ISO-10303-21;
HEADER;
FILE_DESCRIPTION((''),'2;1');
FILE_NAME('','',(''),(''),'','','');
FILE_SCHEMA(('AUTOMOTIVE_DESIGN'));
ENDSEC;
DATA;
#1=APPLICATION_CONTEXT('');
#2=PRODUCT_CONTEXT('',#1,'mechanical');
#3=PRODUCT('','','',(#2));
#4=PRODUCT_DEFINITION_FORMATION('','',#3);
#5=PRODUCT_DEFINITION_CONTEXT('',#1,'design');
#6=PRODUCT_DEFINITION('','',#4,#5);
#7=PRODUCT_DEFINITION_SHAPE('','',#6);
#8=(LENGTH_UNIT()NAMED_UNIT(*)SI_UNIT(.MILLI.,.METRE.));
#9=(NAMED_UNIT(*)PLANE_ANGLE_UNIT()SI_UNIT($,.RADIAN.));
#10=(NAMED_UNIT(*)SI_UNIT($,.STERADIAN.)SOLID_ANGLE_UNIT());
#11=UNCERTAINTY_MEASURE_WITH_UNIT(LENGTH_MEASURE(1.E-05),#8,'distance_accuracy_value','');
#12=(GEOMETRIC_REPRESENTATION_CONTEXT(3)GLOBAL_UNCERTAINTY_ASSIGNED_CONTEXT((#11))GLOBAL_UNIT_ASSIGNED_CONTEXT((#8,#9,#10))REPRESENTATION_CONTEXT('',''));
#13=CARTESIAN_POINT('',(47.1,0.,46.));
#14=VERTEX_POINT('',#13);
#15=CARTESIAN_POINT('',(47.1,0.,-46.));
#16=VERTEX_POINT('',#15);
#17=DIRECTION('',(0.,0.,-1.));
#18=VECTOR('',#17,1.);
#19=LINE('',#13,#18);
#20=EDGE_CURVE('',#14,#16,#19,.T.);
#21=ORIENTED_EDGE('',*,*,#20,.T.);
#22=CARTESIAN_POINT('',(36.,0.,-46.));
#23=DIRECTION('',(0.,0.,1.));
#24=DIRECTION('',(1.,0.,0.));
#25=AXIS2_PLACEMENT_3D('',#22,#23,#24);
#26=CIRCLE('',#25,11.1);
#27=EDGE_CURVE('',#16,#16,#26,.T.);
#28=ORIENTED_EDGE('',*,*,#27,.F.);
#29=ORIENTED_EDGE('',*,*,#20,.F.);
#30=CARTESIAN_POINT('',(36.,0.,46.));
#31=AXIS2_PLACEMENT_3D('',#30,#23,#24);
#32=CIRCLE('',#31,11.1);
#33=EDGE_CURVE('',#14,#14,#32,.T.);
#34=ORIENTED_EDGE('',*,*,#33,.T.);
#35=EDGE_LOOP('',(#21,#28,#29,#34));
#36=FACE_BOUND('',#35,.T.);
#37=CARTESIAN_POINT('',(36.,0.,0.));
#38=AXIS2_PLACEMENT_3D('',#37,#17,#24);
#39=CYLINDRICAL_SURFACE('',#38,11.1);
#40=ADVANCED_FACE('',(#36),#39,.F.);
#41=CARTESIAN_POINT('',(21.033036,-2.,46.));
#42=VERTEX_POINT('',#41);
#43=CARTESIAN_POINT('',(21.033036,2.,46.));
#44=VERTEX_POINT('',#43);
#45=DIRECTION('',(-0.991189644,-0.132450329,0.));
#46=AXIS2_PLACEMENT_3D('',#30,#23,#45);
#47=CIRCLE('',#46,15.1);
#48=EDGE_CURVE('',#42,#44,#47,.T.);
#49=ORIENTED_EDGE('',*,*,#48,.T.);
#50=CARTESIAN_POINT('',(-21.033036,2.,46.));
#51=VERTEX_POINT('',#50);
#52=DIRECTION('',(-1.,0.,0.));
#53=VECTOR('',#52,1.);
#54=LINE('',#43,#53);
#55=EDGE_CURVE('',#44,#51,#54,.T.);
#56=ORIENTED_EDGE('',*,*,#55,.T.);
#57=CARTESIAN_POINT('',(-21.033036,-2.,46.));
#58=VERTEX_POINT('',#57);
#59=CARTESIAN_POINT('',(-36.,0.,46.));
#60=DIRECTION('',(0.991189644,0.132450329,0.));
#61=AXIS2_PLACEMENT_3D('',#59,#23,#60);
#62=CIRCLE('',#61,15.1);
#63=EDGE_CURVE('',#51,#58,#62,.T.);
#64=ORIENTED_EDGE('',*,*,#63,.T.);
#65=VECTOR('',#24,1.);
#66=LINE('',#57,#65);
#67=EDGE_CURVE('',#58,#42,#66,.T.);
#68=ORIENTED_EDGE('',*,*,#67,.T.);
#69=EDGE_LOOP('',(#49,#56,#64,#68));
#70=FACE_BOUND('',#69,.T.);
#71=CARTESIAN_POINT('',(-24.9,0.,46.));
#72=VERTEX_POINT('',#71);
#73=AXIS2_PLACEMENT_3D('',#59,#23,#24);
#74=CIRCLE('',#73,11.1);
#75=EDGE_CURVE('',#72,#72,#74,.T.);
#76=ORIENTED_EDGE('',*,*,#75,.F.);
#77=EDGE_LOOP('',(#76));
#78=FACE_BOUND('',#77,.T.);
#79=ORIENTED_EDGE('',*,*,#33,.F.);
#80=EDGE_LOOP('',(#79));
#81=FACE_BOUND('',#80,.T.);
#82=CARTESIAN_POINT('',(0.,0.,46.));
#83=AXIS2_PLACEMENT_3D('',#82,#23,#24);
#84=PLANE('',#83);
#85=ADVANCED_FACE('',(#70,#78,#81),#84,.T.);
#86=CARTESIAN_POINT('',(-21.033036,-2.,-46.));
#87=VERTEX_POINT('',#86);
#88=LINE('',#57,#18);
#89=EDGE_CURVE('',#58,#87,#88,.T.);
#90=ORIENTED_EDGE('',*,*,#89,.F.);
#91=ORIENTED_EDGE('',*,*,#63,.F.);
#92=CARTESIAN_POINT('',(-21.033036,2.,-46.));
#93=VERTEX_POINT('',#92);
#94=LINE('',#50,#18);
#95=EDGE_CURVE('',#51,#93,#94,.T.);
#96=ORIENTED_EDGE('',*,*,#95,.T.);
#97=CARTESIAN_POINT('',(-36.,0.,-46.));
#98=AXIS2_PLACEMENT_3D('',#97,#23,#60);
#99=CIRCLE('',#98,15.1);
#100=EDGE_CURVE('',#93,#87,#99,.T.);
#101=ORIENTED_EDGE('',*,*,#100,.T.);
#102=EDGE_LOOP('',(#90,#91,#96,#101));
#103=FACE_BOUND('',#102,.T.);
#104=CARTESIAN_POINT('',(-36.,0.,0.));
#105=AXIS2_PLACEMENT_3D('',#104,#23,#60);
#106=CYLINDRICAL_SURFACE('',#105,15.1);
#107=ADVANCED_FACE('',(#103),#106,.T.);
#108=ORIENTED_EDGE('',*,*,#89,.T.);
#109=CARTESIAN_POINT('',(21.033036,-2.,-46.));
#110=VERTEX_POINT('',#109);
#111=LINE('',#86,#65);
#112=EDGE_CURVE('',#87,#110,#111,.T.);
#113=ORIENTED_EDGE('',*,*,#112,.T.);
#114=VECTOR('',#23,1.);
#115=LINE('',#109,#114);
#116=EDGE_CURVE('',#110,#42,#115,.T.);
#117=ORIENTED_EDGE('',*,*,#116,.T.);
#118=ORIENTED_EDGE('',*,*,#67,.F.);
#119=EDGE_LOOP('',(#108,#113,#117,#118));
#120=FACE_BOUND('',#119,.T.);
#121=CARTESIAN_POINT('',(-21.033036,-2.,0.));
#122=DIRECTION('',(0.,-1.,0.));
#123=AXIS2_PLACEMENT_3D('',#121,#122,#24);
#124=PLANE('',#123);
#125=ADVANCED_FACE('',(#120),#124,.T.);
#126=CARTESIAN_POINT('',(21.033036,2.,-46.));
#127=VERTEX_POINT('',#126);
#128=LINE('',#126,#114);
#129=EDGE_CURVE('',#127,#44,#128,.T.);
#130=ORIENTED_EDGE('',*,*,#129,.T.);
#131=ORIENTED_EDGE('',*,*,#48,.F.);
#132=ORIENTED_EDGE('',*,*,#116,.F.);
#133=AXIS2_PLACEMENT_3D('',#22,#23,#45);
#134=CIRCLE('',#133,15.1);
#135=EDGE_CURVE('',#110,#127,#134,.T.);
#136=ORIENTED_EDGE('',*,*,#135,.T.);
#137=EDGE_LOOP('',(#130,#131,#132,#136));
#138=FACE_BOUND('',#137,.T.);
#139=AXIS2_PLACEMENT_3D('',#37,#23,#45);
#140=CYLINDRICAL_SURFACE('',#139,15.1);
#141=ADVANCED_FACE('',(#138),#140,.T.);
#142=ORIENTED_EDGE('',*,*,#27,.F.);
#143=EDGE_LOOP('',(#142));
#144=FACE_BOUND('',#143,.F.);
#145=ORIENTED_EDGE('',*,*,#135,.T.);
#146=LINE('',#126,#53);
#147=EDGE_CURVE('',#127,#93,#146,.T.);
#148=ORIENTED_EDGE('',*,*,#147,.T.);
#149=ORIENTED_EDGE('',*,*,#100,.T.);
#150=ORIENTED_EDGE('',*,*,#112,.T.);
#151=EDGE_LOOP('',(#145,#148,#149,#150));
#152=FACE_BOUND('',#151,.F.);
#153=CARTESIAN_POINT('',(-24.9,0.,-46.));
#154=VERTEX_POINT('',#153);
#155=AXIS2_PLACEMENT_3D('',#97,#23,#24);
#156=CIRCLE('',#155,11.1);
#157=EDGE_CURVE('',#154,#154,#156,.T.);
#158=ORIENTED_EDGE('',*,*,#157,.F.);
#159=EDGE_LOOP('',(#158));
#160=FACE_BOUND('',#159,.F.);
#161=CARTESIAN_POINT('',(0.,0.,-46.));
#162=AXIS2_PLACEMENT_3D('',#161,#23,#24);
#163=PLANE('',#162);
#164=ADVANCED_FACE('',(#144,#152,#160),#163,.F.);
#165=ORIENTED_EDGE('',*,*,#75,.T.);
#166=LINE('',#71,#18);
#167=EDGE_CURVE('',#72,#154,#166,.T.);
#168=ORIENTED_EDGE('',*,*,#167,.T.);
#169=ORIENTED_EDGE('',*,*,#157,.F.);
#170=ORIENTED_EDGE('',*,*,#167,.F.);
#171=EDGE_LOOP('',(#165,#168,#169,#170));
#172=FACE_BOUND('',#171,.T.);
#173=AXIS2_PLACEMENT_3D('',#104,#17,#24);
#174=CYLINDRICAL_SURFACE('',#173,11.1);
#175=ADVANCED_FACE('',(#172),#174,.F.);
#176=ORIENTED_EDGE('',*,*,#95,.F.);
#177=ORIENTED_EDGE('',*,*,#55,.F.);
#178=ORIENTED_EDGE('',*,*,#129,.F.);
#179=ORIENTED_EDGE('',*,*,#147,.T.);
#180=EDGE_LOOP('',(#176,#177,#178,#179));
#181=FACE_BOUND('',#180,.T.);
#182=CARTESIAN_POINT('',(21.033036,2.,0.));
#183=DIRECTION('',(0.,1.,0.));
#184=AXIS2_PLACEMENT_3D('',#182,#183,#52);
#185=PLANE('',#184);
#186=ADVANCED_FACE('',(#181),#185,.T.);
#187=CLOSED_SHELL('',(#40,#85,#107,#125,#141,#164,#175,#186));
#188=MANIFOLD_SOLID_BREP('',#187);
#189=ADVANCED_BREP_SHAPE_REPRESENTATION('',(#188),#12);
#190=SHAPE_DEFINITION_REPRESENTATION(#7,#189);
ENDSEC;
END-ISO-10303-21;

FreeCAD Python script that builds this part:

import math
import FreeCAD as App
import Part
import Sketcher

doc = App.newDocument("Part")
body = doc.addObject("PartDesign::Body", "Body")

sketch1 = body.newObject("Sketcher::SketchObject", "Sketch")
sketch1.AttachmentSupport = (doc.getObject("XY_Plane"), [""])
sketch1.MapMode = "FlatFace"
sketch1.addGeometry(Part.LineSegment(App.Vector(-21, -2, 0), App.Vector(21, -2, 0)), False)
sketch1.addGeometry(Part.ArcOfCircle(Part.Circle(App.Vector(36, 0, 0), App.Vector(0, 0, 1), 15.1), math.radians(-172), math.radians(172)), False)
sketch1.addGeometry(Part.LineSegment(App.Vector(21, 2, 0), App.Vector(-21, 2, 0)), False)
sketch1.addGeometry(Part.ArcOfCircle(Part.Circle(App.Vector(-36, 0, 0), App.Vector(0, 0, 1), 15.1), math.radians(8), math.radians(352)), False)
sketch1.addGeometry(Part.Circle(App.Vector(-36, 0, 0), App.Vector(0, 0, 1), 11.1), False)
sketch1.addGeometry(Part.Circle(App.Vector(36, 0, 0), App.Vector(0, 0, 1), 11.1), False)
sketch1.addConstraint(Sketcher.Constraint("Coincident", 0, 2, 1, 1))
sketch1.addConstraint(Sketcher.Constraint("Coincident", 1, 2, 2, 1))
sketch1.addConstraint(Sketcher.Constraint("Coincident", 2, 2, 3, 1))
sketch1.addConstraint(Sketcher.Constraint("Coincident", 3, 2, 0, 1))
sketch1.addConstraint(Sketcher.Constraint("Horizontal", 0))
sketch1.addConstraint(Sketcher.Constraint("Horizontal", 2))
sketch1.addConstraint(Sketcher.Constraint("Coincident", 4, 3, 3, 3))
sketch1.addConstraint(Sketcher.Constraint("Coincident", 5, 3, 1, 3))
sketch1.addConstraint(Sketcher.Constraint("Equal", 1, 3))
sketch1.addConstraint(Sketcher.Constraint("Equal", 4, 5))
sketch1.addConstraint(Sketcher.Constraint("Symmetric", 1, 3, 3, 3, -1, 1))
sketch1.addConstraint(Sketcher.Constraint("Symmetric", 0, 2, 1, 2, -1))
sketch1.addConstraint(Sketcher.Constraint("Diameter", 4, 22.2))
sketch1.addConstraint(Sketcher.Constraint("Radius", 1, 15.1))
sketch1.addConstraint(Sketcher.Constraint("DistanceX", -1, 1, 1, 3, 36.0))
sketch1.addConstraint(Sketcher.Constraint("DistanceY", 0, 2, -1, 1, 2.0))
pad1 = body.newObject("PartDesign::Pad", "Pad")
pad1.Profile = sketch1
pad1.Length = 92
pad1.Midplane = True

doc.recompute()
